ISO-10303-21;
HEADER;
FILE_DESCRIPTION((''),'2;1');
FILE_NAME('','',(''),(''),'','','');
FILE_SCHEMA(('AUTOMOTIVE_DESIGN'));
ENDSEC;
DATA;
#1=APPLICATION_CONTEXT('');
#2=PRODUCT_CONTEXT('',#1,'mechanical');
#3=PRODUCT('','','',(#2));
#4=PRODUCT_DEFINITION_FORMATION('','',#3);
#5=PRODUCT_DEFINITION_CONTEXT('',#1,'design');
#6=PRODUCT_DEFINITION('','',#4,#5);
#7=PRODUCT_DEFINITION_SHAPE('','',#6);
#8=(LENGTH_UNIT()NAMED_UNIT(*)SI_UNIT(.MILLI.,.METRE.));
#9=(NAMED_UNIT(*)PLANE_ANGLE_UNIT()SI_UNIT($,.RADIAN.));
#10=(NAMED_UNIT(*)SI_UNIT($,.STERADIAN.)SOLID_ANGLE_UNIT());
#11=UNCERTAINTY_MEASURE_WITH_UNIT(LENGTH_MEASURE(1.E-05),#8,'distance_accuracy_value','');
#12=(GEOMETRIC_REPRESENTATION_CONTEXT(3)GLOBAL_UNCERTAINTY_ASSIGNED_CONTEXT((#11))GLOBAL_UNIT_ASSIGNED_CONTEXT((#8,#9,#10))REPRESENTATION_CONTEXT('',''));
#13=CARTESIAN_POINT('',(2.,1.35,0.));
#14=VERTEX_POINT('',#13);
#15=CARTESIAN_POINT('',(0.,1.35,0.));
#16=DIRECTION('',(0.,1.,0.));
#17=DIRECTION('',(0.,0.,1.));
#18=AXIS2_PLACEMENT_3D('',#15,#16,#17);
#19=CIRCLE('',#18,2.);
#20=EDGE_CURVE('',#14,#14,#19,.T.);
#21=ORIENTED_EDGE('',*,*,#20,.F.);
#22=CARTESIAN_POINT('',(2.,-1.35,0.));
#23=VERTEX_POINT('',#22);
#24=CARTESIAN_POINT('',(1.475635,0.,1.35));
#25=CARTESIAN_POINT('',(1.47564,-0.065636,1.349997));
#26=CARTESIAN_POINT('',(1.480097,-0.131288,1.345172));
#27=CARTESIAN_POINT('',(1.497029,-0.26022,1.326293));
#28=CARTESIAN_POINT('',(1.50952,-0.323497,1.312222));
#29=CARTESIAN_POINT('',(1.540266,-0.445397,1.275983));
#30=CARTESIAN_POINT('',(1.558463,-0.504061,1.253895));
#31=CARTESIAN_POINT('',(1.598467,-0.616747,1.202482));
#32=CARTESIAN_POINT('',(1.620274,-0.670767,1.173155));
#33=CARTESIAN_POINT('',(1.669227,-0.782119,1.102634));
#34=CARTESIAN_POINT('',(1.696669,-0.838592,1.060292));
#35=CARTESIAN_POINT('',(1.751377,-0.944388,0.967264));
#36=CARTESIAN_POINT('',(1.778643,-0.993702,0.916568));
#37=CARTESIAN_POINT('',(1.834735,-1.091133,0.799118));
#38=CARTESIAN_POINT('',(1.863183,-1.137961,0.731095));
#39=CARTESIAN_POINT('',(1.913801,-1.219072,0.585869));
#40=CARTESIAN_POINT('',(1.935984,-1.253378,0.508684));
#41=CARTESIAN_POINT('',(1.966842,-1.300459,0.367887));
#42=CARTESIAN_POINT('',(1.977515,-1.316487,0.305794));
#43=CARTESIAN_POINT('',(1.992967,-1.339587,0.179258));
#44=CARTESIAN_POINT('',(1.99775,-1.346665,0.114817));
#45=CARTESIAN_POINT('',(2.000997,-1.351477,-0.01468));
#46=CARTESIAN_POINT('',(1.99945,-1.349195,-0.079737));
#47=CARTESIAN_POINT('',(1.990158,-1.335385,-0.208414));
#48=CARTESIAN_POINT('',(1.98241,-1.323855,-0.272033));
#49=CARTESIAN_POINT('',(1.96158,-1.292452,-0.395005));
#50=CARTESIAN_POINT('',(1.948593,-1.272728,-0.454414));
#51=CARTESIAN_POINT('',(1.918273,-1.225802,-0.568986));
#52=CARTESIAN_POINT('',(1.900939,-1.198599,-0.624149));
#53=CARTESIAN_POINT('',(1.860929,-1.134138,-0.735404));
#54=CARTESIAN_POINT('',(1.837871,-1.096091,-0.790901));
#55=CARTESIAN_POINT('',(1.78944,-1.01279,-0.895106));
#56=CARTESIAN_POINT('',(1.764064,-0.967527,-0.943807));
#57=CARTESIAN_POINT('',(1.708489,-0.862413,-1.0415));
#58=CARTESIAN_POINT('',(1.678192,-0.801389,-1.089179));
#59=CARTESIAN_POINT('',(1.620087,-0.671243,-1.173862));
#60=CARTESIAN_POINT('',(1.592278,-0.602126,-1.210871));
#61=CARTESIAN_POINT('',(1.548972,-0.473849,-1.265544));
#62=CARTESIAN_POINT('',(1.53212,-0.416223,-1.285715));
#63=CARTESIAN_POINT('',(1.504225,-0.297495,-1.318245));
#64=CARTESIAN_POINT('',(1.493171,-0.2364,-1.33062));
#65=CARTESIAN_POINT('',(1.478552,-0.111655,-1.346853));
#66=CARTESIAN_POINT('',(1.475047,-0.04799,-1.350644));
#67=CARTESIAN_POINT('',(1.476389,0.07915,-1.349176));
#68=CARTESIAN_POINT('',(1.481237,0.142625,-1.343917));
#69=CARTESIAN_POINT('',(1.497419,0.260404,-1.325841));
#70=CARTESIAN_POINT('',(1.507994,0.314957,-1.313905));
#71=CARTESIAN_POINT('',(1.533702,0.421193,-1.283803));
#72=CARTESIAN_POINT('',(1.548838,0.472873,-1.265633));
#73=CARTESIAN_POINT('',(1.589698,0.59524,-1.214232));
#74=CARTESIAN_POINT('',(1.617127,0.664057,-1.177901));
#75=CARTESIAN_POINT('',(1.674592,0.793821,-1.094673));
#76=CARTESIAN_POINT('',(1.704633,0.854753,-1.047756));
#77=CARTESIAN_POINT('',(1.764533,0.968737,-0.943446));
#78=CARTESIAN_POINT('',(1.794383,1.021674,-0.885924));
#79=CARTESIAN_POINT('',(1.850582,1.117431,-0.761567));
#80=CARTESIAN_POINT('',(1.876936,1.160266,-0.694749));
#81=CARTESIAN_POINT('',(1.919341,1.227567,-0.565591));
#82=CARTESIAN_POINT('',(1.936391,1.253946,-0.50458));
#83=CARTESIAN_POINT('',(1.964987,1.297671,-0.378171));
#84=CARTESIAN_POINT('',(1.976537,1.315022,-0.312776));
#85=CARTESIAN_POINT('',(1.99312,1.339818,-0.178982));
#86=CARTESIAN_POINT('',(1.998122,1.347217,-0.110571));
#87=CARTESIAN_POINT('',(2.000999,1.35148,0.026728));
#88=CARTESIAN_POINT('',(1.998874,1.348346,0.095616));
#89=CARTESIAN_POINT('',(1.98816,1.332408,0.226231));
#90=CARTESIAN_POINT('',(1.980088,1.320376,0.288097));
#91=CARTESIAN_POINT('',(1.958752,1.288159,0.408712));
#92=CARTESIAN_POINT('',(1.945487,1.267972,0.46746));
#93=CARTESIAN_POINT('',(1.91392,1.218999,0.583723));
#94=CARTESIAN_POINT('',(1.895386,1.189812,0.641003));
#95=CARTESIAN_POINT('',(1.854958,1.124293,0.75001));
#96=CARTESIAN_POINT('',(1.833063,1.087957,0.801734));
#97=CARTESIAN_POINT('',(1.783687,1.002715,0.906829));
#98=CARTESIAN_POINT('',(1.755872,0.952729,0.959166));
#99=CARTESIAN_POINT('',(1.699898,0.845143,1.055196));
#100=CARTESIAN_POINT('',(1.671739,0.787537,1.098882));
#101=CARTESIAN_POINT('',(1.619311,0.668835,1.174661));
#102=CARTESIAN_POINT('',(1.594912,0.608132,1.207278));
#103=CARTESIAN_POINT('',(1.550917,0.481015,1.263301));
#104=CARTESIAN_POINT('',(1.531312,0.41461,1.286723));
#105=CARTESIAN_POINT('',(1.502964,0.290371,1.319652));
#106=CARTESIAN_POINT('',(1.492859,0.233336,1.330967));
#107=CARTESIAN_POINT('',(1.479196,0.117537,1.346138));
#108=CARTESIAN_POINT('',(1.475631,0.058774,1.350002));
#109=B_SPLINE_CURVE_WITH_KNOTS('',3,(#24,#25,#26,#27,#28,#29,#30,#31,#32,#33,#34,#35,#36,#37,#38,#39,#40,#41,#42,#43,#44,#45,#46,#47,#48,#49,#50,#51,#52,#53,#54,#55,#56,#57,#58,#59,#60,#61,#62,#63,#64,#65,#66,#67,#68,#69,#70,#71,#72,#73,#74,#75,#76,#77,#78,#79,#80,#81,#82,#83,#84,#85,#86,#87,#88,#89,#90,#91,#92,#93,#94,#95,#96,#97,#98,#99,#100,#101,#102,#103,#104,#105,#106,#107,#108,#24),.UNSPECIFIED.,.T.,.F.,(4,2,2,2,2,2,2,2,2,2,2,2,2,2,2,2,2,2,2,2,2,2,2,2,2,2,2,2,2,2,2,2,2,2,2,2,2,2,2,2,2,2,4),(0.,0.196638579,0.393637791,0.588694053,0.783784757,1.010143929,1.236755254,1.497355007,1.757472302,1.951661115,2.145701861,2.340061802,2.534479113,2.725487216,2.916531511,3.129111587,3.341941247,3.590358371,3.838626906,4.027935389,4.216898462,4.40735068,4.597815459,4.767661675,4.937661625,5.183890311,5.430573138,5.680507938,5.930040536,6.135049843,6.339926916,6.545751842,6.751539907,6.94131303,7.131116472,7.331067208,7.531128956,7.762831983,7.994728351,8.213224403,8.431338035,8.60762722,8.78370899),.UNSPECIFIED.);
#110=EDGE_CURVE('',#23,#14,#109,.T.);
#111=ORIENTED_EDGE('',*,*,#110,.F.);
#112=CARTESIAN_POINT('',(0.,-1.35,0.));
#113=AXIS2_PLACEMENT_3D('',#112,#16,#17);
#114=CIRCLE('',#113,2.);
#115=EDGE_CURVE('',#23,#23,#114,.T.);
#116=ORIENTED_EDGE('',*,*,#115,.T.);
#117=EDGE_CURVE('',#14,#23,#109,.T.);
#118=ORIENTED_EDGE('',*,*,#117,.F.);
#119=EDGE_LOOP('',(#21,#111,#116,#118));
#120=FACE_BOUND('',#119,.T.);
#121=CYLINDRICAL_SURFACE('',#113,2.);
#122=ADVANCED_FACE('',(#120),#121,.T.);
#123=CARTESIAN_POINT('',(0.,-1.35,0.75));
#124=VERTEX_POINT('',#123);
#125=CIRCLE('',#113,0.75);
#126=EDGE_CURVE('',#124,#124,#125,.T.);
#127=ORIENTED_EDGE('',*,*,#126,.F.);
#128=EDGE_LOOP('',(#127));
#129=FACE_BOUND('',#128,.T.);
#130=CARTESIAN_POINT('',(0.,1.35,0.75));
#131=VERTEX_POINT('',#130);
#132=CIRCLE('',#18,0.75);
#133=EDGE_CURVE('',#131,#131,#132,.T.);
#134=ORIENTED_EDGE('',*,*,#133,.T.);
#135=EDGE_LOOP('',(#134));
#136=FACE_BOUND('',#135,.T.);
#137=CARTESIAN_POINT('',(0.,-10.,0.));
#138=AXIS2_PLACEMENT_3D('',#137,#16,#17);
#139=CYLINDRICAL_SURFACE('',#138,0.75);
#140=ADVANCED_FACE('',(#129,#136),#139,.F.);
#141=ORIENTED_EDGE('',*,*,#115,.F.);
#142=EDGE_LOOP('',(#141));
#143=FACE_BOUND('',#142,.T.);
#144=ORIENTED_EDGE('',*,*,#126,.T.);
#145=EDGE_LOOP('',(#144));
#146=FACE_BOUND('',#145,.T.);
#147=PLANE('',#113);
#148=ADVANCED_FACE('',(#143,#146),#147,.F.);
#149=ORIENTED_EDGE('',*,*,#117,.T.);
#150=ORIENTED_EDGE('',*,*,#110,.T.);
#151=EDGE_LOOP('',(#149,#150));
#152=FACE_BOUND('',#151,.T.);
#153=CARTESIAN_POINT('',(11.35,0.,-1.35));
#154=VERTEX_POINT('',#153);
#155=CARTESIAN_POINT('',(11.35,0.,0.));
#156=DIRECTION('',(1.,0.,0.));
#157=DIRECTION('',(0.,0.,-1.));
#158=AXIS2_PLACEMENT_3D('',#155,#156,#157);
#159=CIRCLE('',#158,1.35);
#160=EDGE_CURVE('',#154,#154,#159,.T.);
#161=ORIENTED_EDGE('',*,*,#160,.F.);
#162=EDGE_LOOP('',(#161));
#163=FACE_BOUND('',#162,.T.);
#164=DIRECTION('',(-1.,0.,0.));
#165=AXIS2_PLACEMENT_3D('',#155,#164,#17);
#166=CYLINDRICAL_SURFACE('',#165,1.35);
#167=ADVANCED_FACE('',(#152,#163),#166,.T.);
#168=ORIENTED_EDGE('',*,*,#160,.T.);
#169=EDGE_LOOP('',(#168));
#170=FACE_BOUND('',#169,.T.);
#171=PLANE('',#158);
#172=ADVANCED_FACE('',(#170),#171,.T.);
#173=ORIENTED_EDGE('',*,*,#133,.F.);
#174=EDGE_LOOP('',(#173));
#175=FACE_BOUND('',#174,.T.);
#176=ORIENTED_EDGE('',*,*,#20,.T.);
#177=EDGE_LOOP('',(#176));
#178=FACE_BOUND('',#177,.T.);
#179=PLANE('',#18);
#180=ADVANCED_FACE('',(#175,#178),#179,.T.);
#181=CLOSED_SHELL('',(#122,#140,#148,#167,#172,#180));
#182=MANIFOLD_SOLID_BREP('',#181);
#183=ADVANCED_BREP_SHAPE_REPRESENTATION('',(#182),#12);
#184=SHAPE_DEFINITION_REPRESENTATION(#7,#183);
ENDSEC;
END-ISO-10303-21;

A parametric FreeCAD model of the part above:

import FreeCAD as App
import Part
import Sketcher
from FreeCAD import Vector

doc = App.newDocument("Part")
body = doc.addObject("PartDesign::Body", "Body")

sketch1 = body.newObject("Sketcher::SketchObject", "Sketch")
sketch1.AttachmentSupport = (doc.getObject("YZ_Plane"), [""])
sketch1.MapMode = "FlatFace"
sketch1.addGeometry(Part.Circle(Vector(0, 0, 0), Vector(0, 0, 1), 1.4), False)
sketch1.addConstraint(Sketcher.Constraint("Coincident", 0, 3, -1, 1))
sketch1.addConstraint(Sketcher.Constraint("Diameter", 0, 2.7))
pad1 = body.newObject("PartDesign::Pad", "Pad")
pad1.Profile = sketch1
pad1.Length = 11.35

sketch2 = body.newObject("Sketcher::SketchObject", "Sketch001")
sketch2.AttachmentSupport = (doc.getObject("XZ_Plane"), [""])
sketch2.MapMode = "FlatFace"
sketch2.addGeometry(Part.Circle(Vector(0, 0, 0), Vector(0, 0, 1), 2), False)
sketch2.addConstraint(Sketcher.Constraint("Coincident", 0, 3, -1, 1))
sketch2.addConstraint(Sketcher.Constraint("Diameter", 0, 4.0))
pad2 = body.newObject("PartDesign::Pad", "Pad001")
pad2.Profile = sketch2
pad2.Type = "TwoLengths"
pad2.Length = 1.35
pad2.Length2 = 1.35
pad2.Reversed = True

sketch3 = body.newObject("Sketcher::SketchObject", "Sketch002")
sketch3.AttachmentSupport = (doc.getObject("XZ_Plane"), [""])
sketch3.MapMode = "FlatFace"
sketch3.AttachmentOffset = App.Placement(Vector(0, 0, -1.35), App.Rotation())
sketch3.addGeometry(Part.Circle(Vector(0, 0, 0), Vector(0, 0, 1), 0.8), False)
sketch3.addConstraint(Sketcher.Constraint("Coincident", 0, 3, -1, 1))
sketch3.addConstraint(Sketcher.Constraint("Diameter", 0, 1.5))
pocket1 = body.newObject("PartDesign::Pocket", "Pocket")
pocket1.Profile = sketch3
pocket1.Length = 11.35
pocket1.Reversed = True

doc.recompute()
